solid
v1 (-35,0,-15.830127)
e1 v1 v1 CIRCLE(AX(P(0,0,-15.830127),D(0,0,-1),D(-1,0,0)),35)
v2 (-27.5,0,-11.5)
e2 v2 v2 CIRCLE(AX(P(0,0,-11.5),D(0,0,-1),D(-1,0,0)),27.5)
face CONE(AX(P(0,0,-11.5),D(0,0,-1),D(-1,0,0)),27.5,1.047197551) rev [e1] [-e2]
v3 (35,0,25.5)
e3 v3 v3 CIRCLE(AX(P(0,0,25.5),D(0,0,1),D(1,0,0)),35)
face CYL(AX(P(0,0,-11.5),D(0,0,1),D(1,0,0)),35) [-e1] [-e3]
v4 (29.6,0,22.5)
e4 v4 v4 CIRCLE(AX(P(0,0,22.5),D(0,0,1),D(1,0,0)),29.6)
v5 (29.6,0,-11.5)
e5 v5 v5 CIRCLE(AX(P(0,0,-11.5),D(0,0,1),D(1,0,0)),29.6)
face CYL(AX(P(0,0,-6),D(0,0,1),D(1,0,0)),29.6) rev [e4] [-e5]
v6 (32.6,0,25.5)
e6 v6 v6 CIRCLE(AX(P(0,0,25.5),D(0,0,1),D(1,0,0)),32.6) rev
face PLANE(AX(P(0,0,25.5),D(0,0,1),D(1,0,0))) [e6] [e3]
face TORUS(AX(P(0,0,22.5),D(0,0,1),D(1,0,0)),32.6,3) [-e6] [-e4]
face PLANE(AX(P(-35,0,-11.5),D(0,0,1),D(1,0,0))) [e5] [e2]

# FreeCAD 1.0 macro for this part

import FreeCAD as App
import Part
import Sketcher
Q = App.Units.Quantity


def edges_at(feature, points):
    """Names of the edges that pass closest to the given points."""
    edges = feature.Shape.Edges
    near = lambda p: min(range(len(edges)), key=lambda i: edges[i].distToShape(Part.Vertex(*p))[0])
    return sorted({f"Edge{near(p) + 1}" for p in points})


def add_polygon(sketch, points):
    """Adds a closed chain of lines whose ends are joined by coincident constraints."""
    first, n = sketch.GeometryCount, len(points)
    for a, b in zip(points, points[1:] + points[:1]):
        sketch.addGeometry(Part.LineSegment(App.Vector(*a, 0), App.Vector(*b, 0)), False)
    for i in range(n):
        sketch.addConstraint(Sketcher.Constraint("Coincident", first + i, 2, first + (i + 1) % n, 1))

doc = App.newDocument("Part")
body = doc.addObject("PartDesign::Body", "Body")

# Sketch on XY plane
sketch1 = doc.addObject("Sketcher::SketchObject", "Sketch")
body.addObject(sketch1)
sketch1.AttachmentSupport = (doc.XY_Plane, [""])
sketch1.MapMode = "FlatFace"
sketch1.addGeometry([
    Part.Circle(App.Vector(0, 0, 0), App.Vector(0, 0, 1), 31),
    Part.Circle(App.Vector(0, 0, 0), App.Vector(0, 0, 1), 29.75),
], False)
sketch1.addConstraint([
    Sketcher.Constraint("Coincident", 0, 3, -1, 1),
    Sketcher.Constraint("Coincident", 1, 3, -1, 1),
    Sketcher.Constraint("Diameter", 0, 62.0),
    Sketcher.Constraint("Diameter", 1, 59.5),
])
pad1 = doc.addObject("PartDesign::Pad", "Pad")
body.addObject(pad1)
pad1.Profile = sketch1
pad1.Length = 29

# Sketch on XY plane
sketch2 = doc.addObject("Sketcher::SketchObject", "Sketch001")
body.addObject(sketch2)
sketch2.AttachmentSupport = (doc.XY_Plane, [""])
sketch2.MapMode = "FlatFace"
sketch2.AttachmentOffset = App.Placement(App.Vector(0, 0, 29), App.Rotation())
sketch2.addGeometry([
    Part.Circle(App.Vector(0, 0, 0), App.Vector(0, 0, 1), 32.5),
    Part.Circle(App.Vector(0, 0, 0), App.Vector(0, 0, 1), 29.6),
], False)
sketch2.addConstraint([
    Sketcher.Constraint("Coincident", 0, 3, -1, 1),
    Sketcher.Constraint("Coincident", 1, 3, -1, 1),
    Sketcher.Constraint("Diameter", 0, 65.0),
    Sketcher.Constraint("Diameter", 1, 59.2),
])
pad2 = doc.addObject("PartDesign::Pad", "Pad001")
body.addObject(pad2)
pad2.Profile = sketch2
pad2.Length = 35
pad2.Reversed = True
doc.recompute()

fillet = doc.addObject("PartDesign::Fillet", "Fillet")
body.addObject(fillet)
fillet.Base = (pad2, edges_at(pad2, [(-29.6, 0, -6)]))
fillet.Radius = 2

# Sketch on XY plane
sketch3 = doc.addObject("Sketcher::SketchObject", "Sketch002")
body.addObject(sketch3)
sketch3.AttachmentSupport = (doc.XY_Plane, [""])
sketch3.MapMode = "FlatFace"
sketch3.AttachmentOffset = App.Placement(App.Vector(0, 0, 29), App.Rotation())
sketch3.addGeometry(Part.Circle(App.Vector(0, 0, 0), App.Vector(0, 0, 1), 32.5), False)
sketch3.addConstraint([
    Sketcher.Constraint("Coincident", 0, 3, -1, 1),
    Sketcher.Constraint("Diameter", 0, 65.0),
])
pocket1 = doc.addObject("PartDesign::Pocket", "Pocket")
body.addObject(pocket1)
pocket1.Profile = sketch3
pocket1.Length = 3.5

# Sketch on XY plane
sketch4 = doc.addObject("Sketcher::SketchObject", "Sketch003")
body.addObject(sketch4)
sketch4.AttachmentSupport = (doc.XY_Plane, [""])
sketch4.MapMode = "FlatFace"
sketch4.AttachmentOffset = App.Placement(App.Vector(0, 0, 25.5), App.Rotation())
sketch4.addGeometry([
    Part.Circle(App.Vector(0, 0, 0), App.Vector(0, 0, 1), 29.6),
    Part.Circle(App.Vector(0, 0, 0), App.Vector(0, 0, 1), 27.5),
], False)
sketch4.addConstraint([
    Sketcher.Constraint("Coincident", 0, 3, -1, 1),
    Sketcher.Constraint("Coincident", 1, 3, -1, 1),
    Sketcher.Constraint("Diameter", 1, 55.0),
    Sketcher.Constraint("Diameter", 0, 59.2),
])
pad3 = doc.addObject("PartDesign::Pad", "Pad002")
body.addObject(pad3)
pad3.Profile = sketch4
pad3.Length = 15
pad3.Reversed = True

# Sketch on XY plane
sketch5 = doc.addObject("Sketcher::SketchObject", "Sketch004")
body.addObject(sketch5)
sketch5.AttachmentSupport = (doc.XY_Plane, [""])
sketch5.MapMode = "FlatFace"
sketch5.AttachmentOffset = App.Placement(App.Vector(0, 0, 43.5), App.Rotation())
sketch5.addGeometry(Part.Circle(App.Vector(0, 0, 0), App.Vector(0, 0, 1), 29.6), False)
sketch5.addConstraint([
    Sketcher.Constraint("Coincident", 0, 3, -1, 1),
    Sketcher.Constraint("Diameter", 0, 59.2),
])
pocket2 = doc.addObject("PartDesign::Pocket", "Pocket001")
body.addObject(pocket2)
pocket2.Profile = sketch5
pocket2.Length = 33

# Sketch on XY plane
sketch6 = doc.addObject("Sketcher::SketchObject", "Sketch005")
body.addObject(sketch6)
sketch6.AttachmentSupport = (doc.XY_Plane, [""])
sketch6.MapMode = "FlatFace"
sketch6.AttachmentOffset = App.Placement(App.Vector(0, 0, 25.5), App.Rotation())
sketch6.addGeometry([
    Part.Circle(App.Vector(0, 0, 0), App.Vector(0, 0, 1), 35),
    Part.Circle(App.Vector(0, 0, 0), App.Vector(0, 0, 1), 29.6),
], False)
sketch6.addConstraint([
    Sketcher.Constraint("Coincident", 0, 3, -1, 1),
    Sketcher.Constraint("Coincident", 1, 3, -1, 1),
    Sketcher.Constraint("Diameter", 0, 70.0),
    Sketcher.Constraint("Diameter", 1, 59.2),
])
pad4 = doc.addObject("PartDesign::Pad", "Pad003")
body.addObject(pad4)
pad4.Profile = sketch6
pad4.Length = 37
pad4.Reversed = True

# Sketch on XZ plane
sketch7 = doc.addObject("Sketcher::SketchObject", "Sketch006")
body.addObject(sketch7)
sketch7.AttachmentSupport = (doc.XZ_Plane, [""])
sketch7.MapMode = "FlatFace"
add_polygon(sketch7, [(-27.5, -11.5), (-35, -15.830127), (-35, -11.5)])  # lines 0-2
sketch7.addConstraint([
    Sketcher.Constraint("Vertical", 1),
    Sketcher.Constraint("Horizontal", 2),
    Sketcher.Constraint("Angle", 0, Q("-150 deg")),
    Sketcher.Constraint("DistanceX", 2, 1, 2, 2, 7.5),
    Sketcher.Constraint("DistanceX", 0, 2, -1, 1, 35.0),
    Sketcher.Constraint("DistanceY", 1, 2, -1, 1, 11.5),
])
revolution = doc.addObject("PartDesign::Revolution", "Revolution")
body.addObject(revolution)
revolution.Profile = sketch7
revolution.ReferenceAxis = (sketch7, ["V_Axis"])
revolution.Angle = 360
doc.recompute()

fillet2 = doc.addObject("PartDesign::Fillet", "Fillet001")
body.addObject(fillet2)
fillet2.Base = (revolution, edges_at(revolution, [(-29.6, 0, 25.5)]))
fillet2.Radius = 3

doc.recompute()
